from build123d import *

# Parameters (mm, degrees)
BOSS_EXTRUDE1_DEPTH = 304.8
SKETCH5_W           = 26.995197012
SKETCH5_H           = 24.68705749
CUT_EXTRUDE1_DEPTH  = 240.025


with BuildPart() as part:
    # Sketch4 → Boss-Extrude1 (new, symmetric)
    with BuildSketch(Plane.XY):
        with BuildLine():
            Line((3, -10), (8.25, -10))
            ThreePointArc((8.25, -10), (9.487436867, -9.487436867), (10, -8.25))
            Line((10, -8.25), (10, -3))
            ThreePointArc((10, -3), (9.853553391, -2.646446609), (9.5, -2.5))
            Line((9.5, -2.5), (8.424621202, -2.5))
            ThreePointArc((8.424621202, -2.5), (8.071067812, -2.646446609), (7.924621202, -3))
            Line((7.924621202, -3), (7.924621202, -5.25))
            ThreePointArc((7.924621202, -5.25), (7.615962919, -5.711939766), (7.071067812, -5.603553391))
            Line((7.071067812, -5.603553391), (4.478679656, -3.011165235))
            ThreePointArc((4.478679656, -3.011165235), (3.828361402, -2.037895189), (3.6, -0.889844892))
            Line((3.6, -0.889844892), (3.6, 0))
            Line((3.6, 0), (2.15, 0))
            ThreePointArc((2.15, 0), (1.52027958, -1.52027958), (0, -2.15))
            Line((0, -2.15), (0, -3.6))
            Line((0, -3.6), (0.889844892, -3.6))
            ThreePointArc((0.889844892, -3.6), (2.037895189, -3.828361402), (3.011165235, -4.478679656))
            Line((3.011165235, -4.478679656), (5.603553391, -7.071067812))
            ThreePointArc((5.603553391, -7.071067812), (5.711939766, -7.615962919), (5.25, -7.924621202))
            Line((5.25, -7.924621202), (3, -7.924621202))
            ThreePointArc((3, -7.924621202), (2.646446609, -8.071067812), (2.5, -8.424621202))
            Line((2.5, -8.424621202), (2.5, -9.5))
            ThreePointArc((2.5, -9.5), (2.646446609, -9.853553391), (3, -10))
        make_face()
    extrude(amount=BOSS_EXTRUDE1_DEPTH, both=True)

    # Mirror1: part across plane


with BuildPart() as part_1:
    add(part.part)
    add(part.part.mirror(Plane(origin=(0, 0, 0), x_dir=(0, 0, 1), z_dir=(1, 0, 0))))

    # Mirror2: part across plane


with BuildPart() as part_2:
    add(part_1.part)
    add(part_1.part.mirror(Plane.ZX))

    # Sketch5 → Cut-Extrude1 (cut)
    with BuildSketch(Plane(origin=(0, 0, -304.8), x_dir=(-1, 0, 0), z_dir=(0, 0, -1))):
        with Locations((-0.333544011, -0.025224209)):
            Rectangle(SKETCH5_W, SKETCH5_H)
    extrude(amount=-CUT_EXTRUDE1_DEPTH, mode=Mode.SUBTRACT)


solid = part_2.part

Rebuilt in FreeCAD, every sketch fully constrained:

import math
import FreeCAD as App
import Part
import Sketcher
from FreeCAD import Vector
Q = App.Units.Quantity

doc = App.newDocument("Part")
body = doc.addObject("PartDesign::Body", "Body")

# Sketch on XY plane
sketch1 = body.newObject("Sketcher::SketchObject", "Sketch")
sketch1.AttachmentSupport = (doc.getObject("XY_Plane"), [""])
sketch1.MapMode = "FlatFace"
sketch1.addGeometry([
    Part.LineSegment(Vector(3, -10, 0), Vector(8.25, -10, 0)),  # 0
    Part.ArcOfCircle(Part.Circle(Vector(8.25, -8.25, 0), Vector(0, 0, 1), 1.75), math.radians(-90), math.radians(0)),  # 1
    Part.LineSegment(Vector(10, -8.25, 0), Vector(10, -3, 0)),  # 2
    Part.ArcOfCircle(Part.Circle(Vector(9.5, -3, 0), Vector(0, 0, 1), 0.5), math.radians(0), math.radians(90)),  # 3
    Part.LineSegment(Vector(9.5, -2.5, 0), Vector(8.42, -2.5, 0)),  # 4
    Part.ArcOfCircle(Part.Circle(Vector(8.42, -3, 0), Vector(0, 0, 1), 0.5), math.radians(90), math.radians(180)),  # 5
    Part.LineSegment(Vector(7.92, -3, 0), Vector(7.92, -5.25, 0)),  # 6
    Part.ArcOfCircle(Part.Circle(Vector(7.42, -5.25, 0), Vector(0, 0, 1), 0.5), math.radians(-135), math.radians(0)),  # 7
    Part.LineSegment(Vector(7.07, -5.6, 0), Vector(4.48, -3.01, 0)),  # 8
    Part.ArcOfCircle(Part.Circle(Vector(6.6, -0.89, 0), Vector(0, 0, 1), 3), math.radians(180), math.radians(225)),  # 9
    Part.LineSegment(Vector(3.6, -0.89, 0), Vector(3.6, 0, 0)),  # 10
    Part.LineSegment(Vector(3.6, 0, 0), Vector(2.15, 0, 0)),  # 11
    Part.ArcOfCircle(Part.Circle(Vector(0, 0, 0), Vector(0, 0, 1), 2.15), math.radians(-90), math.radians(0)),  # 12
    Part.LineSegment(Vector(0, -2.15, 0), Vector(0, -3.6, 0)),  # 13
    Part.LineSegment(Vector(0, -3.6, 0), Vector(0.89, -3.6, 0)),  # 14
    Part.ArcOfCircle(Part.Circle(Vector(0.89, -6.6, 0), Vector(0, 0, 1), 3), math.radians(45), math.radians(90)),  # 15
    Part.LineSegment(Vector(3.01, -4.48, 0), Vector(5.6, -7.07, 0)),  # 16
    Part.ArcOfCircle(Part.Circle(Vector(5.25, -7.42, 0), Vector(0, 0, 1), 0.5), math.radians(-90), math.radians(45)),  # 17
    Part.LineSegment(Vector(5.25, -7.92, 0), Vector(3, -7.92, 0)),  # 18
    Part.ArcOfCircle(Part.Circle(Vector(3, -8.42, 0), Vector(0, 0, 1), 0.5), math.radians(90), math.radians(180)),  # 19
    Part.LineSegment(Vector(2.5, -8.42, 0), Vector(2.5, -9.5, 0)),  # 20
    Part.ArcOfCircle(Part.Circle(Vector(3, -9.5, 0), Vector(0, 0, 1), 0.5), math.radians(180), math.radians(270)),  # 21
], False)
sketch1.addConstraint([
    Sketcher.Constraint("Tangent", 0, 2, 1, 1),
    Sketcher.Constraint("Tangent", 1, 2, 2, 1),
    Sketcher.Constraint("Tangent", 2, 2, 3, 1),
    Sketcher.Constraint("Tangent", 3, 2, 4, 1),
    Sketcher.Constraint("Tangent", 4, 2, 5, 1),
    Sketcher.Constraint("Tangent", 5, 2, 6, 1),
    Sketcher.Constraint("Tangent", 6, 2, 7, 2),
    Sketcher.Constraint("Tangent", 7, 1, 8, 1),
    Sketcher.Constraint("Tangent", 8, 2, 9, 2),
    Sketcher.Constraint("Tangent", 9, 1, 10, 1),
    Sketcher.Constraint("Coincident", 10, 2, 11, 1),
    Sketcher.Constraint("Coincident", 11, 2, 12, 2),
    Sketcher.Constraint("Coincident", 12, 1, 13, 1),
    Sketcher.Constraint("Coincident", 13, 2, 14, 1),
    Sketcher.Constraint("Tangent", 14, 2, 15, 2),
    Sketcher.Constraint("Tangent", 15, 1, 16, 1),
    Sketcher.Constraint("Tangent", 16, 2, 17, 2),
    Sketcher.Constraint("Tangent", 17, 1, 18, 1),
    Sketcher.Constraint("Tangent", 18, 2, 19, 1),
    Sketcher.Constraint("Tangent", 19, 2, 20, 1),
    Sketcher.Constraint("Tangent", 20, 2, 21, 1),
    Sketcher.Constraint("Tangent", 21, 2, 0, 1),
    Sketcher.Constraint("Horizontal", 0),
    Sketcher.Constraint("Vertical", 2),
    Sketcher.Constraint("Horizontal", 4),
    Sketcher.Constraint("Vertical", 6),
    Sketcher.Constraint("Vertical", 10),
    Sketcher.Constraint("Horizontal", 11),
    Sketcher.Constraint("Vertical", 13),
    Sketcher.Constraint("Horizontal", 14),
    Sketcher.Constraint("Horizontal", 18),
    Sketcher.Constraint("Vertical", 20),
    Sketcher.Constraint("Coincident", 12, 3, -1, 1),
    Sketcher.Constraint("Equal", 3, 5),
    Sketcher.Constraint("Equal", 5, 7),
    Sketcher.Constraint("Equal", 9, 15),
    Sketcher.Constraint("Equal", 7, 17),
    Sketcher.Constraint("Equal", 17, 19),
    Sketcher.Constraint("Equal", 19, 21),
    Sketcher.Constraint("PointOnObject", 10, 2, -1),
    Sketcher.Constraint("PointOnObject", 12, 1, -2),
    Sketcher.Constraint("Parallel", 8, 16),
    Sketcher.Constraint("Equal", 0, 2),
    Sketcher.Constraint("Equal", 18, 6),
    Sketcher.Constraint("Equal", 14, 10),
    Sketcher.Constraint("Equal", 11, 13),
    Sketcher.Constraint("Equal", 4, 20),
    Sketcher.Constraint("Equal", 8, 16),
    Sketcher.Constraint("Radius", 9, Q("3 mm")),
    Sketcher.Constraint("Radius", 3, Q("0.5 mm")),
    Sketcher.Constraint("Radius", 1, Q("1.75 mm")),
    Sketcher.Constraint("Radius", 12, Q("2.15 mm")),
    Sketcher.Constraint("DistanceY", 3, 3, -1, 1, Q("3 mm")),
    Sketcher.Constraint("DistanceY", 0, 2, -1, 1, Q("10 mm")),
    Sketcher.Constraint("DistanceY", 1, 3, 7, 3, Q("3 mm")),
    Sketcher.Constraint("DistanceX", 11, 2, 11, 1, Q("1.45 mm")),
    Sketcher.Constraint("DistanceX", 4, 2, 4, 1, Q("1.075379 mm")),
])
pad1 = body.newObject("PartDesign::Pad", "Pad")
pad1.Profile = sketch1
pad1.Length = 609.6
pad1.Midplane = True
body2 = doc.addObject("PartDesign::Body", "Body001")
doc.recompute()

body2.BaseFeature = body
doc.recompute()

mirroring = doc.addObject("Part::Mirroring", "Mirroring")
mirroring.Source = body
mirroring.Base = Vector(0, 0, 0)
mirroring.Normal = Vector(1, 0, 0)
body3 = doc.addObject("PartDesign::Body", "Body002")
body3.BaseFeature = mirroring
boolean = body2.newObject("PartDesign::Boolean", "Boolean")
boolean.Type = "Fuse"
boolean.addObjects([body3])
doc.recompute()
body4 = doc.addObject("PartDesign::Body", "Body003")
doc.recompute()

body4.BaseFeature = body2
doc.recompute()

mirroring2 = doc.addObject("Part::Mirroring", "Mirroring001")
mirroring2.Source = body2
mirroring2.Base = Vector(0, 0, 0)
mirroring2.Normal = Vector(0, 1, 0)
body5 = doc.addObject("PartDesign::Body", "Body004")
body5.BaseFeature = mirroring2
boolean2 = body4.newObject("PartDesign::Boolean", "Boolean001")
boolean2.Type = "Fuse"
boolean2.addObjects([body5])
doc.recompute()

# Sketch on XY plane
sketch2 = body4.newObject("Sketcher::SketchObject", "Sketch001")
sketch2.AttachmentSupport = (doc.getObject("XY_Plane003"), [""])
sketch2.MapMode = "FlatFace"
sketch2.AttachmentOffset = App.Placement(Vector(0, 0, -304.8), App.Rotation())
sketch2.addGeometry([
    Part.LineSegment(Vector(14, 12, 0), Vector(14, -12, 0)),
    Part.LineSegment(Vector(14, -12, 0), Vector(-13, -12, 0)),
    Part.LineSegment(Vector(-13, -12, 0), Vector(-13, 12, 0)),
    Part.LineSegment(Vector(-13, 12, 0), Vector(14, 12, 0)),
], False)
sketch2.addConstraint([
    Sketcher.Constraint("Coincident", 0, 2, 1, 1),
    Sketcher.Constraint("Coincident", 1, 2, 2, 1),
    Sketcher.Constraint("Coincident", 2, 2, 3, 1),
    Sketcher.Constraint("Coincident", 3, 2, 0, 1),
    Sketcher.Constraint("Vertical", 0),
    Sketcher.Constraint("Horizontal", 1),
    Sketcher.Constraint("Vertical", 2),
    Sketcher.Constraint("Horizontal", 3),
    Sketcher.Constraint("DistanceX", 1, 2, 1, 1, Q("26.995197 mm")),
    Sketcher.Constraint("DistanceY", 0, 2, 0, 1, Q("24.687057 mm")),
    Sketcher.Constraint("DistanceX", -1, 1, 0, 2, Q("13.831143 mm")),
    Sketcher.Constraint("DistanceY", 0, 2, -1, 1, Q("12.368753 mm")),
])
pocket1 = body4.newObject("PartDesign::Pocket", "Pocket")
pocket1.Profile = sketch2
pocket1.Length = 240.025
pocket1.Reversed = True
mirroring.Visibility = False
mirroring2.Visibility = False

doc.recompute()
